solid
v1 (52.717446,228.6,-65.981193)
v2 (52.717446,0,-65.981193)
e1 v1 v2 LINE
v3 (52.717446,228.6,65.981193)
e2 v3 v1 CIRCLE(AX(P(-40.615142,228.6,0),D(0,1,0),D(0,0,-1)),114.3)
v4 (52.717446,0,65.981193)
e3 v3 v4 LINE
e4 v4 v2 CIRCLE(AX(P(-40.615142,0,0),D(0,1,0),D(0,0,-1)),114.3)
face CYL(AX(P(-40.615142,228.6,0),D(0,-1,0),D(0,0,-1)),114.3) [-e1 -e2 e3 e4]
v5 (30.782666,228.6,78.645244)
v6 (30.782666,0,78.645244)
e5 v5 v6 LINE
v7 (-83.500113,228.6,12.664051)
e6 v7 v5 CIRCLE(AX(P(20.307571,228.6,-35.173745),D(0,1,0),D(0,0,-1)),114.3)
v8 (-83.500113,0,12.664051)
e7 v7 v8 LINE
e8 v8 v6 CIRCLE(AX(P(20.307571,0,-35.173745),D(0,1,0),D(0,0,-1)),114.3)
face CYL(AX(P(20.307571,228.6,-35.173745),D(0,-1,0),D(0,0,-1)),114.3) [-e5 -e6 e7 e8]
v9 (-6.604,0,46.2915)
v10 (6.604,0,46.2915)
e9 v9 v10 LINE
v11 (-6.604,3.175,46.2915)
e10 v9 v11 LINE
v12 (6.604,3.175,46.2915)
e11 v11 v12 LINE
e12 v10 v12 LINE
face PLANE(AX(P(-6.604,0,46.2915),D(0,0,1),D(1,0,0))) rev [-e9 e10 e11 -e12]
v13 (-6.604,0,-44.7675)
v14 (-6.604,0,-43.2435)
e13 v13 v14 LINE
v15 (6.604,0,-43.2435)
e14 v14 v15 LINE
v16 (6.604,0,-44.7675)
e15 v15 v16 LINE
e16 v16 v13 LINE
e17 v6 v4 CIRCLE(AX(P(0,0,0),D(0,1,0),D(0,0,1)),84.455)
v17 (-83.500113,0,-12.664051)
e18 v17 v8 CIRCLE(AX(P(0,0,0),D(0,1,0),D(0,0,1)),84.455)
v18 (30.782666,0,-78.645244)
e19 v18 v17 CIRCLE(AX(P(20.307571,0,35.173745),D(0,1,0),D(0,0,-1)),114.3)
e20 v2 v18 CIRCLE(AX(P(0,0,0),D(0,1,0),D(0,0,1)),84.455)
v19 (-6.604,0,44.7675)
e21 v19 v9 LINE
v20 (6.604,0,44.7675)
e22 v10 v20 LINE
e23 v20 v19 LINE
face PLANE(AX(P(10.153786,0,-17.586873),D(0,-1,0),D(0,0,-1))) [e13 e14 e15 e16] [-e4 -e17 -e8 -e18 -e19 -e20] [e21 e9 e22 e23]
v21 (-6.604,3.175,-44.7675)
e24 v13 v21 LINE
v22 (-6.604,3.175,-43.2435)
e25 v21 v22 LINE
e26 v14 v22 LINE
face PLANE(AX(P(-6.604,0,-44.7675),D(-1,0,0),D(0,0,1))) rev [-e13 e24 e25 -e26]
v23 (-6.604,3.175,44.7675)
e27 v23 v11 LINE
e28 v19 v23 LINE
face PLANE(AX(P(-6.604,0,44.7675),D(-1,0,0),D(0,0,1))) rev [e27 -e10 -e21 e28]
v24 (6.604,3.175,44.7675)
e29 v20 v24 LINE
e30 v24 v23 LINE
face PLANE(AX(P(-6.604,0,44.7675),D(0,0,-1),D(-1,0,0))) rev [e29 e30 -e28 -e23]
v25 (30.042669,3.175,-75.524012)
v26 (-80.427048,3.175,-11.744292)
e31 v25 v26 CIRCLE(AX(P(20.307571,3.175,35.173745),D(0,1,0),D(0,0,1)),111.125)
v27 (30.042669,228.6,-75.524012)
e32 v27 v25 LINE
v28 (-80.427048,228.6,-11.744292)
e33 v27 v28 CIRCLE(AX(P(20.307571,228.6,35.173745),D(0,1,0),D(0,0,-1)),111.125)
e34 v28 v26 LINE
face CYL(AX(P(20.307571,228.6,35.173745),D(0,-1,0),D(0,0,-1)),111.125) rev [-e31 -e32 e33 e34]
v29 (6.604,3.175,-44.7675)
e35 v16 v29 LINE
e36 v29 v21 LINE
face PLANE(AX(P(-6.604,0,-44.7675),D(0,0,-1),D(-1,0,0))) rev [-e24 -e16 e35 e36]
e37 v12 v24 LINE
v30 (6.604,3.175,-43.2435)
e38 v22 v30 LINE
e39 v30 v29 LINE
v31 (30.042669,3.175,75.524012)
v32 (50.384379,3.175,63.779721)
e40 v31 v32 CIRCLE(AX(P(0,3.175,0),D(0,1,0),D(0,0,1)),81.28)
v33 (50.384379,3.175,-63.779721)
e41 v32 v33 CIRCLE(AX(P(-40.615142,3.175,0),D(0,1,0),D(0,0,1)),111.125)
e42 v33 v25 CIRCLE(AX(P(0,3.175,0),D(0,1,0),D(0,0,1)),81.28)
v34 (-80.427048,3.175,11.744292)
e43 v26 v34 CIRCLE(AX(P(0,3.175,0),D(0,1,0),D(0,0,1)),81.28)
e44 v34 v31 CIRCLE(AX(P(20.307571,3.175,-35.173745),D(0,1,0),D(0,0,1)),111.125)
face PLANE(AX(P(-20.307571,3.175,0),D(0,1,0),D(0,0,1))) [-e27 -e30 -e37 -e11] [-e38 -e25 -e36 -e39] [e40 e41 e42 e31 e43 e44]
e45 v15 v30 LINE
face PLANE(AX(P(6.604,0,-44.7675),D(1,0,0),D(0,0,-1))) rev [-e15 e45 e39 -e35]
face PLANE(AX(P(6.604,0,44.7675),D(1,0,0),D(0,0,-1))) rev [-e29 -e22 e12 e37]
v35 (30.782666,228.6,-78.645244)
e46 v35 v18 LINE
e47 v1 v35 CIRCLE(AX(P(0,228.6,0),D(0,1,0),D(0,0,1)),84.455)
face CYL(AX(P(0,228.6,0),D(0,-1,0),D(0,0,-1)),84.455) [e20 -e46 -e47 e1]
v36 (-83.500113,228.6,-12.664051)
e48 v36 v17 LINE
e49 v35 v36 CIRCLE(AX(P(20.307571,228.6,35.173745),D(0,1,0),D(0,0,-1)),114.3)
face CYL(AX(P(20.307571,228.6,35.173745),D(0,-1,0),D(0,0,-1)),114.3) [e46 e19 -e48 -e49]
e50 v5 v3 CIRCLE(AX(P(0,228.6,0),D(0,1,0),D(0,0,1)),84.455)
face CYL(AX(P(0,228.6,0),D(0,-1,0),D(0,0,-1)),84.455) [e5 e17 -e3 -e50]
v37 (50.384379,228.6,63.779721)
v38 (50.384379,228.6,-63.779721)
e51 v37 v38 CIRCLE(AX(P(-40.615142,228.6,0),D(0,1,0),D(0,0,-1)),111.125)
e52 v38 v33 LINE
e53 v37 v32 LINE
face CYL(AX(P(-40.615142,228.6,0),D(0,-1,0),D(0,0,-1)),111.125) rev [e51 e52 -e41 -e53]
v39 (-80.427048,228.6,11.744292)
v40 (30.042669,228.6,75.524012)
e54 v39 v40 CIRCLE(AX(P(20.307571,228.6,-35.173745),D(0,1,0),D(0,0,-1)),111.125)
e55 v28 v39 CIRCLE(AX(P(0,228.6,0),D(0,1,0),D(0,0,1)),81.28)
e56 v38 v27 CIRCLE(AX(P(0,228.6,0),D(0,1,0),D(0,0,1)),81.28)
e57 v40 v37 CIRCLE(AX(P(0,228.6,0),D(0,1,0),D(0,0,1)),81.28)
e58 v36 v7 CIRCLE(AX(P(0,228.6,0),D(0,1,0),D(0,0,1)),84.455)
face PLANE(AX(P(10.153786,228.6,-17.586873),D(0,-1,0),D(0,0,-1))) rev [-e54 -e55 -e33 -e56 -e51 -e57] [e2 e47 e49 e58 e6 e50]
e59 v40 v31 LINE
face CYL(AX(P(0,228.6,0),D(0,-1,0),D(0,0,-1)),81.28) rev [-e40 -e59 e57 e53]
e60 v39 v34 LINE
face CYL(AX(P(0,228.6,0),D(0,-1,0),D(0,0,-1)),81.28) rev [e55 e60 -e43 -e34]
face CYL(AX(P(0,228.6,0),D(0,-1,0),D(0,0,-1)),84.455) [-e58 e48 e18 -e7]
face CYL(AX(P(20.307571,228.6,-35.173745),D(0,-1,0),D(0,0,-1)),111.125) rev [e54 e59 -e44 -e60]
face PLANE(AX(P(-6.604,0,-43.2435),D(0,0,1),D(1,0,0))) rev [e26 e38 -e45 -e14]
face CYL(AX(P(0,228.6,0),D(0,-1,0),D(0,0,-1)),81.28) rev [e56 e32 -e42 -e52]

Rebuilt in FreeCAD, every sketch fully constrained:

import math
import FreeCAD as App
import Part
import Sketcher
Q = App.Units.Quantity

doc = App.newDocument("Part")
body = doc.addObject("PartDesign::Body", "Body")

# Sketch on XZ plane
sketch1 = body.newObject("Sketcher::SketchObject", "Sketch")
sketch1.AttachmentSupport = (doc.getObject("XZ_Plane"), [""])
sketch1.MapMode = "FlatFace"
sketch1.addGeometry([
    Part.ArcOfCircle(Part.Circle(App.Vector(0, 0, 0), App.Vector(0, 0, 1), 84), math.radians(171.38), math.radians(188.62)),  # 0
    Part.ArcOfCircle(Part.Circle(App.Vector(20, -35, 0), App.Vector(0, 0, 1), 114), math.radians(85), math.radians(155)),  # 1
    Part.ArcOfCircle(Part.Circle(App.Vector(0, 0, 0), App.Vector(0, 0, 1), 84), math.radians(51.38), math.radians(68.62)),  # 2
    Part.ArcOfCircle(Part.Circle(App.Vector(-41, 0, 0), App.Vector(0, 0, 1), 114), math.radians(-35), math.radians(35)),  # 3
    Part.ArcOfCircle(Part.Circle(App.Vector(0, 0, 0), App.Vector(0, 0, 1), 84), math.radians(-68.62), math.radians(-51.38)),  # 4
    Part.ArcOfCircle(Part.Circle(App.Vector(20, 35, 0), App.Vector(0, 0, 1), 114), math.radians(-155), math.radians(-85)),  # 5
    Part.ArcOfCircle(Part.Circle(App.Vector(0, 0, 0), App.Vector(0, 0, 1), 81), math.radians(-68.31), math.radians(-51.69)),  # 6
    Part.ArcOfCircle(Part.Circle(App.Vector(-41, 0, 0), App.Vector(0, 0, 1), 111), math.radians(-35), math.radians(35)),  # 7
    Part.ArcOfCircle(Part.Circle(App.Vector(0, 0, 0), App.Vector(0, 0, 1), 81), math.radians(51.69), math.radians(68.31)),  # 8
    Part.ArcOfCircle(Part.Circle(App.Vector(20, -35, 0), App.Vector(0, 0, 1), 111), math.radians(85), math.radians(155)),  # 9
    Part.ArcOfCircle(Part.Circle(App.Vector(0, 0, 0), App.Vector(0, 0, 1), 81), math.radians(171.69), math.radians(188.31)),  # 10
    Part.ArcOfCircle(Part.Circle(App.Vector(20, 35, 0), App.Vector(0, 0, 1), 111), math.radians(-155), math.radians(-85)),  # 11
], False)
sketch1.addConstraint([
    Sketcher.Constraint("Coincident", 0, 1, 1, 2),
    Sketcher.Constraint("Coincident", 1, 1, 2, 2),
    Sketcher.Constraint("Coincident", 2, 1, 3, 2),
    Sketcher.Constraint("Coincident", 3, 1, 4, 2),
    Sketcher.Constraint("Coincident", 4, 1, 5, 2),
    Sketcher.Constraint("Coincident", 5, 1, 0, 2),
    Sketcher.Constraint("Coincident", 6, 2, 7, 1),
    Sketcher.Constraint("Coincident", 7, 2, 8, 1),
    Sketcher.Constraint("Coincident", 8, 2, 9, 1),
    Sketcher.Constraint("Coincident", 9, 2, 10, 1),
    Sketcher.Constraint("Coincident", 10, 2, 11, 1),
    Sketcher.Constraint("Coincident", 11, 2, 6, 1),
    Sketcher.Constraint("Coincident", 0, 3, -1, 1),
    Sketcher.Constraint("Coincident", 2, 3, -1, 1),
    Sketcher.Constraint("Coincident", 4, 3, -1, 1),
    Sketcher.Constraint("Coincident", 6, 3, -1, 1),
    Sketcher.Constraint("Coincident", 8, 3, -1, 1),
    Sketcher.Constraint("Coincident", 10, 3, -1, 1),
    Sketcher.Constraint("Coincident", 7, 3, 3, 3),
    Sketcher.Constraint("Coincident", 9, 3, 1, 3),
    Sketcher.Constraint("Coincident", 11, 3, 5, 3),
    Sketcher.Constraint("Equal", 0, 2),
    Sketcher.Constraint("Equal", 1, 3),
    Sketcher.Constraint("Equal", 2, 4),
    Sketcher.Constraint("Equal", 3, 5),
    Sketcher.Constraint("Equal", 6, 8),
    Sketcher.Constraint("Equal", 7, 9),
    Sketcher.Constraint("Equal", 8, 10),
    Sketcher.Constraint("Equal", 9, 11),
    Sketcher.Constraint("Symmetric", 1, 3, 5, 3, -1),
    Sketcher.Constraint("PointOnObject", 3, 3, -1),
    Sketcher.Constraint("Radius", 1, Q("4.5 in")),
    Sketcher.Constraint("Radius", 6, Q("3.2 in")),
    Sketcher.Constraint("Radius", 0, Q("3.325 in")),
    Sketcher.Constraint("Radius", 7, Q("4.375 in")),
    Sketcher.Constraint("DistanceY", 5, 3, 1, 1, Q("43.471499 mm")),
    Sketcher.Constraint("DistanceX", -1, 1, 1, 3, Q("20.307571 mm")),
    Sketcher.Constraint("DistanceX", -1, 1, 6, 2, Q("50.384379 mm")),
])
pad1 = body.newObject("PartDesign::Pad", "Pad")
pad1.Profile = sketch1
pad1.Length = Q("9 in")
pad1.Reversed = True

# Sketch on XZ plane
sketch2 = body.newObject("Sketcher::SketchObject", "Sketch001")
sketch2.AttachmentSupport = (doc.getObject("XZ_Plane"), [""])
sketch2.MapMode = "FlatFace"
sketch2.addGeometry([
    Part.ArcOfCircle(Part.Circle(App.Vector(0, 0, 0), App.Vector(0, 0, 1), 81), math.radians(-68.31), math.radians(-51.69)),  # 0
    Part.ArcOfCircle(Part.Circle(App.Vector(20, 35, 0), App.Vector(0, 0, 1), 111), math.radians(-155), math.radians(-85)),  # 1
    Part.ArcOfCircle(Part.Circle(App.Vector(0, 0, 0), App.Vector(0, 0, 1), 81), math.radians(171.69), math.radians(188.31)),  # 2
    Part.ArcOfCircle(Part.Circle(App.Vector(20, -35, 0), App.Vector(0, 0, 1), 111), math.radians(85), math.radians(155)),  # 3
    Part.ArcOfCircle(Part.Circle(App.Vector(0, 0, 0), App.Vector(0, 0, 1), 81), math.radians(51.69), math.radians(68.31)),  # 4
    Part.ArcOfCircle(Part.Circle(App.Vector(-41, 0, 0), App.Vector(0, 0, 1), 111), math.radians(-35), math.radians(35)),  # 5
], False)
sketch2.addConstraint([
    Sketcher.Constraint("Coincident", 0, 1, 1, 2),
    Sketcher.Constraint("Coincident", 1, 1, 2, 2),
    Sketcher.Constraint("Coincident", 2, 1, 3, 2),
    Sketcher.Constraint("Coincident", 3, 1, 4, 2),
    Sketcher.Constraint("Coincident", 4, 1, 5, 2),
    Sketcher.Constraint("Coincident", 5, 1, 0, 2),
    Sketcher.Constraint("Coincident", 0, 3, -1, 1),
    Sketcher.Constraint("Coincident", 2, 3, -1, 1),
    Sketcher.Constraint("Coincident", 4, 3, -1, 1),
    Sketcher.Constraint("Equal", 0, 2),
    Sketcher.Constraint("Equal", 1, 3),
    Sketcher.Constraint("Equal", 2, 4),
    Sketcher.Constraint("Equal", 3, 5),
    Sketcher.Constraint("Symmetric", 1, 3, 3, 3, -1),
    Sketcher.Constraint("PointOnObject", 5, 3, -1),
    Sketcher.Constraint("Radius", 0, Q("3.2 in")),
    Sketcher.Constraint("Radius", 1, Q("4.375 in")),
    Sketcher.Constraint("DistanceX", -1, 1, 1, 3, Q("20.307571 mm")),
    Sketcher.Constraint("DistanceX", -1, 1, 0, 1, Q("30.042669 mm")),
    Sketcher.Constraint("DistanceX", -1, 1, 4, 1, Q("50.384379 mm")),
])
pad2 = body.newObject("PartDesign::Pad", "Pad001")
pad2.Profile = sketch2
pad2.Length = Q("0.125 in")
pad2.Reversed = True

# Sketch on XZ plane
sketch3 = body.newObject("Sketcher::SketchObject", "Sketch002")
sketch3.AttachmentSupport = (doc.getObject("XZ_Plane"), [""])
sketch3.MapMode = "FlatFace"
sketch3.AttachmentOffset = App.Placement(App.Vector(0, 0, -0.125 * 25.4), App.Rotation())
sketch3.addGeometry([
    Part.LineSegment(App.Vector(-6.6, -44.8, 0), App.Vector(-6.6, -43.2, 0)),  # 0
    Part.LineSegment(App.Vector(-6.6, -43.2, 0), App.Vector(6.6, -43.2, 0)),  # 1
    Part.LineSegment(App.Vector(6.6, -43.2, 0), App.Vector(6.6, -44.8, 0)),  # 2
    Part.LineSegment(App.Vector(6.6, -44.8, 0), App.Vector(-6.6, -44.8, 0)),  # 3
    Part.LineSegment(App.Vector(-6.6, 44.8, 0), App.Vector(-6.6, 46.3, 0)),  # 4
    Part.LineSegment(App.Vector(-6.6, 46.3, 0), App.Vector(6.6, 46.3, 0)),  # 5
    Part.LineSegment(App.Vector(6.6, 46.3, 0), App.Vector(6.6, 44.8, 0)),  # 6
    Part.LineSegment(App.Vector(6.6, 44.8, 0), App.Vector(-6.6, 44.8, 0)),  # 7
], False)
sketch3.addConstraint([
    Sketcher.Constraint("Coincident", 0, 2, 1, 1),
    Sketcher.Constraint("Coincident", 1, 2, 2, 1),
    Sketcher.Constraint("Coincident", 2, 2, 3, 1),
    Sketcher.Constraint("Coincident", 3, 2, 0, 1),
    Sketcher.Constraint("Coincident", 4, 2, 5, 1),
    Sketcher.Constraint("Coincident", 5, 2, 6, 1),
    Sketcher.Constraint("Coincident", 6, 2, 7, 1),
    Sketcher.Constraint("Coincident", 7, 2, 4, 1),
    Sketcher.Constraint("Vertical", 0),
    Sketcher.Constraint("Horizontal", 1),
    Sketcher.Constraint("Vertical", 2),
    Sketcher.Constraint("Horizontal", 3),
    Sketcher.Constraint("Vertical", 4),
    Sketcher.Constraint("Horizontal", 5),
    Sketcher.Constraint("Vertical", 6),
    Sketcher.Constraint("Horizontal", 7),
    Sketcher.Constraint("Symmetric", 3, 2, 6, 2, -1, 1),
    Sketcher.Constraint("Vertical", 3, 2, 4, 2),
    Sketcher.Constraint("Vertical", 2, 2, 5, 2),
    Sketcher.Constraint("Equal", 2, 4),
    Sketcher.Constraint("DistanceX", 1, 1, 1, 2, Q("0.52 in")),
    Sketcher.Constraint("DistanceY", 0, 1, 0, 2, Q("0.06 in")),
    Sketcher.Constraint("DistanceY", 0, 2, 4, 2, Q("3.525 in")),
])
pocket1 = body.newObject("PartDesign::Pocket", "Pocket")
pocket1.Profile = sketch3
pocket1.Type = "ThroughAll"
pocket1.Reversed = True

doc.recompute()
